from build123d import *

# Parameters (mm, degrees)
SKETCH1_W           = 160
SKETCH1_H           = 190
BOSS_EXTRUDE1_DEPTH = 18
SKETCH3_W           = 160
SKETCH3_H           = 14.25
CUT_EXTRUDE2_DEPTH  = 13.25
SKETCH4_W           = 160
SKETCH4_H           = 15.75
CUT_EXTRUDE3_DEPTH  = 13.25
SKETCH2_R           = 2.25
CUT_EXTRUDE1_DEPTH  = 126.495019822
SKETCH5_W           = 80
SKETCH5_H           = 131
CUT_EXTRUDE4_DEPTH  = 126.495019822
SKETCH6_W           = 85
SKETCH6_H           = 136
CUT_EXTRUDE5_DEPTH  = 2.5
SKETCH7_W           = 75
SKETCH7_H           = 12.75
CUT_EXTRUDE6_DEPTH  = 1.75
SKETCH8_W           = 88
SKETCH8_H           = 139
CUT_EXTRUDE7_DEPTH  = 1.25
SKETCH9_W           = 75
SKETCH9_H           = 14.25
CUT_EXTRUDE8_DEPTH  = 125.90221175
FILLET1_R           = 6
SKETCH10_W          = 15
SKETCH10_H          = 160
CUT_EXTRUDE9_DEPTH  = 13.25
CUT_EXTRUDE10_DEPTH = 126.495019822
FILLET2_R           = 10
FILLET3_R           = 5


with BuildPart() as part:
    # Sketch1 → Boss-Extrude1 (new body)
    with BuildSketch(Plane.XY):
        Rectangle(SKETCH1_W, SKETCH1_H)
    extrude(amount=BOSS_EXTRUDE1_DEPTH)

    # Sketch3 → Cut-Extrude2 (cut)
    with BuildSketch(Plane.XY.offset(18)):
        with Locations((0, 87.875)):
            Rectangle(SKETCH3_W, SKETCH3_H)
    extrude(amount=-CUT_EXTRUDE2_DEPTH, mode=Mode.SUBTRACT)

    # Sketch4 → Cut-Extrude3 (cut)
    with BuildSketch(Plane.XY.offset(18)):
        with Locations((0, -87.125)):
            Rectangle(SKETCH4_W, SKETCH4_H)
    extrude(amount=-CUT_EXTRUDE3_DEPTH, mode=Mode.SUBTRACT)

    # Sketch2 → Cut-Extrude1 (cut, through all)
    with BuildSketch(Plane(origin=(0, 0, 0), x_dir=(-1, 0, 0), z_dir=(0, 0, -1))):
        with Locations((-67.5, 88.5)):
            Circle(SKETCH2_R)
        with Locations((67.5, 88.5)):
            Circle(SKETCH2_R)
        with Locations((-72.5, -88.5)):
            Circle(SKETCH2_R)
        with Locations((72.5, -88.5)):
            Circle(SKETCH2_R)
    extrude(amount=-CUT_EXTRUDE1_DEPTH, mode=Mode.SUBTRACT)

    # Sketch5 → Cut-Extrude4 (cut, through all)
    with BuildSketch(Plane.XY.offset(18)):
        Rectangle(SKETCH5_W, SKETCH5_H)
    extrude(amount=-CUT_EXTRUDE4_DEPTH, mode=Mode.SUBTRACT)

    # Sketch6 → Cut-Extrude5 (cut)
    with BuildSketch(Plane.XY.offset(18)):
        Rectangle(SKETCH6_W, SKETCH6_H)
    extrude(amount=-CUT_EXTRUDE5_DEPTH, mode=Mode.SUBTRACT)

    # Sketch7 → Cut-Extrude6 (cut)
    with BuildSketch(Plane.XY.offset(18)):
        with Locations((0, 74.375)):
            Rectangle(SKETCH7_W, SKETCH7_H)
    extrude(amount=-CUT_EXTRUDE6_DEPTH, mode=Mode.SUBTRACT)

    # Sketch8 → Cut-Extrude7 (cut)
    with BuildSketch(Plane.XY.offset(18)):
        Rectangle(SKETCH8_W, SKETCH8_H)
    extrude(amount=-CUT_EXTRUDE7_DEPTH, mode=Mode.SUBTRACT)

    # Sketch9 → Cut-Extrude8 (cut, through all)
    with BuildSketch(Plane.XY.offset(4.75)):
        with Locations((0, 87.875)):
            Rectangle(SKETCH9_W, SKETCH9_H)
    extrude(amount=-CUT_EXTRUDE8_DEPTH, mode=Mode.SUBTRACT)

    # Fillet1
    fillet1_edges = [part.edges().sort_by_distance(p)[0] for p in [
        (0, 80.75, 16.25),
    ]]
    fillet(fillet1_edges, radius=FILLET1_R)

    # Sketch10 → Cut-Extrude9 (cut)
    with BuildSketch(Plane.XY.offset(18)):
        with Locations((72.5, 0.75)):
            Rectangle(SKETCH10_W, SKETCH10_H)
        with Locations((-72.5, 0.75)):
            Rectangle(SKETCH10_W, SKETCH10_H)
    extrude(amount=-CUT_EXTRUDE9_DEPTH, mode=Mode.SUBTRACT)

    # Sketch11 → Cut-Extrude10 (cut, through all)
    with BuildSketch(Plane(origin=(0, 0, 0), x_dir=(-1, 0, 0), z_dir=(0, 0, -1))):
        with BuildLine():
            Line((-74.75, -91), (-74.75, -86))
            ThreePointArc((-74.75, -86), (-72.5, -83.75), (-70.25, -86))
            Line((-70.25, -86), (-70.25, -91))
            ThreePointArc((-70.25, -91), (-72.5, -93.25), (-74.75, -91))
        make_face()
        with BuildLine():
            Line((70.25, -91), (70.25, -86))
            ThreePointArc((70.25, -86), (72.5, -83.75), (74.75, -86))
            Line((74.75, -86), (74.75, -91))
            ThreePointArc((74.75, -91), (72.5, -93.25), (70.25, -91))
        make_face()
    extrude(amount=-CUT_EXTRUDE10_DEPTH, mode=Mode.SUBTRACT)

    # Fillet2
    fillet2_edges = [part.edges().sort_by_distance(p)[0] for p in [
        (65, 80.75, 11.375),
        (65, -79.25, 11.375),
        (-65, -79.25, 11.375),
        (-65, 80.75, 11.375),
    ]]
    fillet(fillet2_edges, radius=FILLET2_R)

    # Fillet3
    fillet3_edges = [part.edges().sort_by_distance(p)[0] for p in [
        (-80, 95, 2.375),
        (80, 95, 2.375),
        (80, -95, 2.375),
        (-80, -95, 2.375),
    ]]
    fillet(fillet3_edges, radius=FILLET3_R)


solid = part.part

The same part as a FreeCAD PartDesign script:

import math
import FreeCAD as App
import Part
import Sketcher

V = App.Vector
Q = App.Units.Quantity


def edges_at(feature, points):
    """Names of the edges that pass closest to the given points."""
    edges = feature.Shape.Edges
    near = lambda p: min(range(len(edges)), key=lambda i: edges[i].distToShape(Part.Vertex(*p))[0])
    return sorted({f"Edge{near(p) + 1}" for p in points})

doc = App.newDocument("Part")
body = doc.addObject("PartDesign::Body", "Body")

# Sketch on XY plane
sketch1 = doc.addObject("Sketcher::SketchObject", "Sketch")
body.addObject(sketch1)
sketch1.AttachmentSupport = (doc.XY_Plane, [""])
sketch1.MapMode = "FlatFace"
sketch1.addGeometry(Part.LineSegment(V(-80, 95, 0), V(-80, -95, 0)), False)
sketch1.addGeometry(Part.LineSegment(V(-80, -95, 0), V(80, -95, 0)), False)
sketch1.addGeometry(Part.LineSegment(V(80, -95, 0), V(80, 95, 0)), False)
sketch1.addGeometry(Part.LineSegment(V(80, 95, 0), V(-80, 95, 0)), False)
sketch1.addConstraint(Sketcher.Constraint("Coincident", 0, 2, 1, 1))
sketch1.addConstraint(Sketcher.Constraint("Coincident", 1, 2, 2, 1))
sketch1.addConstraint(Sketcher.Constraint("Coincident", 2, 2, 3, 1))
sketch1.addConstraint(Sketcher.Constraint("Coincident", 3, 2, 0, 1))
sketch1.addConstraint(Sketcher.Constraint("Vertical", 0))
sketch1.addConstraint(Sketcher.Constraint("Horizontal", 1))
sketch1.addConstraint(Sketcher.Constraint("Vertical", 2))
sketch1.addConstraint(Sketcher.Constraint("Horizontal", 3))
sketch1.addConstraint(Sketcher.Constraint("Symmetric", 0, 2, 2, 2, -1, 1))
sketch1.addConstraint(Sketcher.Constraint("DistanceX", 1, 1, 1, 2, Q("160 mm")))
sketch1.addConstraint(Sketcher.Constraint("DistanceY", 0, 2, 0, 1, Q("190 mm")))
pad1 = doc.addObject("PartDesign::Pad", "Pad")
body.addObject(pad1)
pad1.Profile = sketch1
pad1.Length = 18

# Sketch on XY plane
sketch2 = doc.addObject("Sketcher::SketchObject", "Sketch001")
body.addObject(sketch2)
sketch2.AttachmentSupport = (doc.XY_Plane, [""])
sketch2.MapMode = "FlatFace"
sketch2.AttachmentOffset = App.Placement(V(0, 0, 18), App.Rotation())
sketch2.addGeometry(Part.LineSegment(V(-80, 95, 0), V(-80, 81, 0)), False)
sketch2.addGeometry(Part.LineSegment(V(-80, 81, 0), V(80, 81, 0)), False)
sketch2.addGeometry(Part.LineSegment(V(80, 81, 0), V(80, 95, 0)), False)
sketch2.addGeometry(Part.LineSegment(V(80, 95, 0), V(-80, 95, 0)), False)
sketch2.addConstraint(Sketcher.Constraint("Coincident", 0, 2, 1, 1))
sketch2.addConstraint(Sketcher.Constraint("Coincident", 1, 2, 2, 1))
sketch2.addConstraint(Sketcher.Constraint("Coincident", 2, 2, 3, 1))
sketch2.addConstraint(Sketcher.Constraint("Coincident", 3, 2, 0, 1))
sketch2.addConstraint(Sketcher.Constraint("Vertical", 0))
sketch2.addConstraint(Sketcher.Constraint("Horizontal", 1))
sketch2.addConstraint(Sketcher.Constraint("Vertical", 2))
sketch2.addConstraint(Sketcher.Constraint("Horizontal", 3))
sketch2.addConstraint(Sketcher.Constraint("DistanceX", 1, 1, 1, 2, Q("160 mm")))
sketch2.addConstraint(Sketcher.Constraint("DistanceX", 0, 2, -1, 1, Q("80 mm")))
sketch2.addConstraint(Sketcher.Constraint("DistanceY", -1, 1, 2, 2, Q("95 mm")))
sketch2.addConstraint(Sketcher.Constraint("DistanceY", 0, 2, 0, 1, Q("14.25 mm")))
pocket1 = doc.addObject("PartDesign::Pocket", "Pocket")
body.addObject(pocket1)
pocket1.Profile = sketch2
pocket1.Length = 13.25

# Sketch on XY plane
sketch3 = doc.addObject("Sketcher::SketchObject", "Sketch002")
body.addObject(sketch3)
sketch3.AttachmentSupport = (doc.XY_Plane, [""])
sketch3.MapMode = "FlatFace"
sketch3.AttachmentOffset = App.Placement(V(0, 0, 18), App.Rotation())
sketch3.addGeometry(Part.LineSegment(V(-80, -79, 0), V(-80, -95, 0)), False)
sketch3.addGeometry(Part.LineSegment(V(-80, -95, 0), V(80, -95, 0)), False)
sketch3.addGeometry(Part.LineSegment(V(80, -95, 0), V(80, -79, 0)), False)
sketch3.addGeometry(Part.LineSegment(V(80, -79, 0), V(-80, -79, 0)), False)
sketch3.addConstraint(Sketcher.Constraint("Coincident", 0, 2, 1, 1))
sketch3.addConstraint(Sketcher.Constraint("Coincident", 1, 2, 2, 1))
sketch3.addConstraint(Sketcher.Constraint("Coincident", 2, 2, 3, 1))
sketch3.addConstraint(Sketcher.Constraint("Coincident", 3, 2, 0, 1))
sketch3.addConstraint(Sketcher.Constraint("Vertical", 0))
sketch3.addConstraint(Sketcher.Constraint("Horizontal", 1))
sketch3.addConstraint(Sketcher.Constraint("Vertical", 2))
sketch3.addConstraint(Sketcher.Constraint("Horizontal", 3))
sketch3.addConstraint(Sketcher.Constraint("DistanceX", 1, 1, 1, 2, Q("160 mm")))
sketch3.addConstraint(Sketcher.Constraint("DistanceX", 0, 2, -1, 1, Q("80 mm")))
sketch3.addConstraint(Sketcher.Constraint("DistanceY", 0, 2, -1, 1, Q("95 mm")))
sketch3.addConstraint(Sketcher.Constraint("DistanceY", 0, 2, 0, 1, Q("15.75 mm")))
pocket2 = doc.addObject("PartDesign::Pocket", "Pocket001")
body.addObject(pocket2)
pocket2.Profile = sketch3
pocket2.Length = 13.25

# Sketch on XY plane
sketch4 = doc.addObject("Sketcher::SketchObject", "Sketch003")
body.addObject(sketch4)
sketch4.AttachmentSupport = (doc.XY_Plane, [""])
sketch4.MapMode = "FlatFace"
sketch4.addGeometry(Part.Circle(V(67.5, 88.5, 0), V(0, 0, 1), 2.2), False)
sketch4.addGeometry(Part.Circle(V(-67.5, 88.5, 0), V(0, 0, 1), 2.2), False)
sketch4.addGeometry(Part.Circle(V(72.5, -88.5, 0), V(0, 0, 1), 2.2), False)
sketch4.addGeometry(Part.Circle(V(-72.5, -88.5, 0), V(0, 0, 1), 2.2), False)
sketch4.addConstraint(Sketcher.Constraint("Equal", 0, 1))
sketch4.addConstraint(Sketcher.Constraint("Equal", 1, 2))
sketch4.addConstraint(Sketcher.Constraint("Equal", 2, 3))
sketch4.addConstraint(Sketcher.Constraint("Symmetric", 0, 3, 1, 3, -2))
sketch4.addConstraint(Sketcher.Constraint("Symmetric", 2, 3, 3, 3, -2))
sketch4.addConstraint(Sketcher.Constraint("Diameter", 0, Q("4.5 mm")))
sketch4.addConstraint(Sketcher.Constraint("DistanceX", 1, 3, 0, 3, Q("135 mm")))
sketch4.addConstraint(Sketcher.Constraint("DistanceX", 0, 3, 2, 3, Q("5 mm")))
sketch4.addConstraint(Sketcher.Constraint("DistanceY", 2, 3, 0, 3, Q("177 mm")))
sketch4.addConstraint(Sketcher.Constraint("DistanceY", -1, 1, 0, 3, Q("88.5 mm")))
pocket3 = doc.addObject("PartDesign::Pocket", "Pocket002")
body.addObject(pocket3)
pocket3.Profile = sketch4
pocket3.Type = "ThroughAll"
pocket3.Reversed = True

# Sketch on XY plane
sketch5 = doc.addObject("Sketcher::SketchObject", "Sketch004")
body.addObject(sketch5)
sketch5.AttachmentSupport = (doc.XY_Plane, [""])
sketch5.MapMode = "FlatFace"
sketch5.AttachmentOffset = App.Placement(V(0, 0, 18), App.Rotation())
sketch5.addGeometry(Part.LineSegment(V(-40, 66, 0), V(-40, -66, 0)), False)
sketch5.addGeometry(Part.LineSegment(V(-40, -66, 0), V(40, -66, 0)), False)
sketch5.addGeometry(Part.LineSegment(V(40, -66, 0), V(40, 66, 0)), False)
sketch5.addGeometry(Part.LineSegment(V(40, 66, 0), V(-40, 66, 0)), False)
sketch5.addConstraint(Sketcher.Constraint("Coincident", 0, 2, 1, 1))
sketch5.addConstraint(Sketcher.Constraint("Coincident", 1, 2, 2, 1))
sketch5.addConstraint(Sketcher.Constraint("Coincident", 2, 2, 3, 1))
sketch5.addConstraint(Sketcher.Constraint("Coincident", 3, 2, 0, 1))
sketch5.addConstraint(Sketcher.Constraint("Vertical", 0))
sketch5.addConstraint(Sketcher.Constraint("Horizontal", 1))
sketch5.addConstraint(Sketcher.Constraint("Vertical", 2))
sketch5.addConstraint(Sketcher.Constraint("Horizontal", 3))
sketch5.addConstraint(Sketcher.Constraint("Symmetric", 0, 2, 2, 2, -1, 1))
sketch5.addConstraint(Sketcher.Constraint("DistanceX", 1, 1, 1, 2, Q("80 mm")))
sketch5.addConstraint(Sketcher.Constraint("DistanceY", 0, 2, 0, 1, Q("131 mm")))
pocket4 = doc.addObject("PartDesign::Pocket", "Pocket003")
body.addObject(pocket4)
pocket4.Profile = sketch5
pocket4.Type = "ThroughAll"

# Sketch on XY plane
sketch6 = doc.addObject("Sketcher::SketchObject", "Sketch005")
body.addObject(sketch6)
sketch6.AttachmentSupport = (doc.XY_Plane, [""])
sketch6.MapMode = "FlatFace"
sketch6.AttachmentOffset = App.Placement(V(0, 0, 18), App.Rotation())
sketch6.addGeometry(Part.LineSegment(V(-42, 68, 0), V(-42, -68, 0)), False)
sketch6.addGeometry(Part.LineSegment(V(-42, -68, 0), V(42, -68, 0)), False)
sketch6.addGeometry(Part.LineSegment(V(42, -68, 0), V(42, 68, 0)), False)
sketch6.addGeometry(Part.LineSegment(V(42, 68, 0), V(-42, 68, 0)), False)
sketch6.addConstraint(Sketcher.Constraint("Coincident", 0, 2, 1, 1))
sketch6.addConstraint(Sketcher.Constraint("Coincident", 1, 2, 2, 1))
sketch6.addConstraint(Sketcher.Constraint("Coincident", 2, 2, 3, 1))
sketch6.addConstraint(Sketcher.Constraint("Coincident", 3, 2, 0, 1))
sketch6.addConstraint(Sketcher.Constraint("Vertical", 0))
sketch6.addConstraint(Sketcher.Constraint("Horizontal", 1))
sketch6.addConstraint(Sketcher.Constraint("Vertical", 2))
sketch6.addConstraint(Sketcher.Constraint("Horizontal", 3))
sketch6.addConstraint(Sketcher.Constraint("Symmetric", 0, 2, 2, 2, -1, 1))
sketch6.addConstraint(Sketcher.Constraint("DistanceX", 1, 1, 1, 2, Q("85 mm")))
sketch6.addConstraint(Sketcher.Constraint("DistanceY", 0, 2, 0, 1, Q("136 mm")))
pocket5 = doc.addObject("PartDesign::Pocket", "Pocket004")
body.addObject(pocket5)
pocket5.Profile = sketch6
pocket5.Length = 2.5

# Sketch on XY plane
sketch7 = doc.addObject("Sketcher::SketchObject", "Sketch006")
body.addObject(sketch7)
sketch7.AttachmentSupport = (doc.XY_Plane, [""])
sketch7.MapMode = "FlatFace"
sketch7.AttachmentOffset = App.Placement(V(0, 0, 18), App.Rotation())
sketch7.addGeometry(Part.LineSegment(V(-38, 81, 0), V(-38, 68, 0)), False)
sketch7.addGeometry(Part.LineSegment(V(-38, 68, 0), V(38, 68, 0)), False)
sketch7.addGeometry(Part.LineSegment(V(38, 68, 0), V(38, 81, 0)), False)
sketch7.addGeometry(Part.LineSegment(V(38, 81, 0), V(-38, 81, 0)), False)
sketch7.addConstraint(Sketcher.Constraint("Coincident", 0, 2, 1, 1))
sketch7.addConstraint(Sketcher.Constraint("Coincident", 1, 2, 2, 1))
sketch7.addConstraint(Sketcher.Constraint("Coincident", 2, 2, 3, 1))
sketch7.addConstraint(Sketcher.Constraint("Coincident", 3, 2, 0, 1))
sketch7.addConstraint(Sketcher.Constraint("Vertical", 0))
sketch7.addConstraint(Sketcher.Constraint("Horizontal", 1))
sketch7.addConstraint(Sketcher.Constraint("Vertical", 2))
sketch7.addConstraint(Sketcher.Constraint("Horizontal", 3))
sketch7.addConstraint(Sketcher.Constraint("DistanceX", 1, 1, 1, 2, Q("75 mm")))
sketch7.addConstraint(Sketcher.Constraint("DistanceY", -1, 1, 0, 2, Q("68 mm")))
sketch7.addConstraint(Sketcher.Constraint("DistanceY", 0, 2, 0, 1, Q("12.75 mm")))
sketch7.addConstraint(Sketcher.Constraint("DistanceX", 0, 2, -1, 1, Q("37.5 mm")))
pocket6 = doc.addObject("PartDesign::Pocket", "Pocket005")
body.addObject(pocket6)
pocket6.Profile = sketch7
pocket6.Length = 1.75

# Sketch on XY plane
sketch8 = doc.addObject("Sketcher::SketchObject", "Sketch007")
body.addObject(sketch8)
sketch8.AttachmentSupport = (doc.XY_Plane, [""])
sketch8.MapMode = "FlatFace"
sketch8.AttachmentOffset = App.Placement(V(0, 0, 18), App.Rotation())
sketch8.addGeometry(Part.LineSegment(V(-44, 70, 0), V(-44, -70, 0)), False)
sketch8.addGeometry(Part.LineSegment(V(-44, -70, 0), V(44, -70, 0)), False)
sketch8.addGeometry(Part.LineSegment(V(44, -70, 0), V(44, 70, 0)), False)
sketch8.addGeometry(Part.LineSegment(V(44, 70, 0), V(-44, 70, 0)), False)
sketch8.addConstraint(Sketcher.Constraint("Coincident", 0, 2, 1, 1))
sketch8.addConstraint(Sketcher.Constraint("Coincident", 1, 2, 2, 1))
sketch8.addConstraint(Sketcher.Constraint("Coincident", 2, 2, 3, 1))
sketch8.addConstraint(Sketcher.Constraint("Coincident", 3, 2, 0, 1))
sketch8.addConstraint(Sketcher.Constraint("Vertical", 0))
sketch8.addConstraint(Sketcher.Constraint("Horizontal", 1))
sketch8.addConstraint(Sketcher.Constraint("Vertical", 2))
sketch8.addConstraint(Sketcher.Constraint("Horizontal", 3))
sketch8.addConstraint(Sketcher.Constraint("Symmetric", 0, 2, 2, 2, -1, 1))
sketch8.addConstraint(Sketcher.Constraint("DistanceX", 1, 1, 1, 2, Q("88 mm")))
sketch8.addConstraint(Sketcher.Constraint("DistanceY", 0, 2, 0, 1, Q("139 mm")))
pocket7 = doc.addObject("PartDesign::Pocket", "Pocket006")
body.addObject(pocket7)
pocket7.Profile = sketch8
pocket7.Length = 1.25

# Sketch on XY plane
sketch9 = doc.addObject("Sketcher::SketchObject", "Sketch008")
body.addObject(sketch9)
sketch9.AttachmentSupport = (doc.XY_Plane, [""])
sketch9.MapMode = "FlatFace"
sketch9.AttachmentOffset = App.Placement(V(0, 0, 4.75), App.Rotation())
sketch9.addGeometry(Part.LineSegment(V(-38, 95, 0), V(-38, 81, 0)), False)
sketch9.addGeometry(Part.LineSegment(V(-38, 81, 0), V(38, 81, 0)), False)
sketch9.addGeometry(Part.LineSegment(V(38, 81, 0), V(38, 95, 0)), False)
sketch9.addGeometry(Part.LineSegment(V(38, 95, 0), V(-38, 95, 0)), False)
sketch9.addConstraint(Sketcher.Constraint("Coincident", 0, 2, 1, 1))
sketch9.addConstraint(Sketcher.Constraint("Coincident", 1, 2, 2, 1))
sketch9.addConstraint(Sketcher.Constraint("Coincident", 2, 2, 3, 1))
sketch9.addConstraint(Sketcher.Constraint("Coincident", 3, 2, 0, 1))
sketch9.addConstraint(Sketcher.Constraint("Vertical", 0))
sketch9.addConstraint(Sketcher.Constraint("Horizontal", 1))
sketch9.addConstraint(Sketcher.Constraint("Vertical", 2))
sketch9.addConstraint(Sketcher.Constraint("Horizontal", 3))
sketch9.addConstraint(Sketcher.Constraint("DistanceX", 1, 1, 1, 2, Q("75 mm")))
sketch9.addConstraint(Sketcher.Constraint("DistanceY", -1, 1, 2, 2, Q("95 mm")))
sketch9.addConstraint(Sketcher.Constraint("DistanceY", 0, 2, 0, 1, Q("14.25 mm")))
sketch9.addConstraint(Sketcher.Constraint("DistanceX", 0, 2, -1, 1, Q("37.5 mm")))
pocket8 = doc.addObject("PartDesign::Pocket", "Pocket007")
body.addObject(pocket8)
pocket8.Profile = sketch9
pocket8.Type = "ThroughAll"
doc.recompute()

fillet = doc.addObject("PartDesign::Fillet", "Fillet")
body.addObject(fillet)
fillet.Base = (pocket8, edges_at(pocket8, [(0, 80.75, 16.25)]))
fillet.Radius = 6

# Sketch on XY plane
sketch10 = doc.addObject("Sketcher::SketchObject", "Sketch009")
body.addObject(sketch10)
sketch10.AttachmentSupport = (doc.XY_Plane, [""])
sketch10.MapMode = "FlatFace"
sketch10.AttachmentOffset = App.Placement(V(0, 0, 18), App.Rotation())
sketch10.addGeometry(Part.LineSegment(V(65, 81, 0), V(65, -79, 0)), False)
sketch10.addGeometry(Part.LineSegment(V(65, -79, 0), V(80, -79, 0)), False)
sketch10.addGeometry(Part.LineSegment(V(80, -79, 0), V(80, 81, 0)), False)
sketch10.addGeometry(Part.LineSegment(V(80, 81, 0), V(65, 81, 0)), False)
sketch10.addGeometry(Part.LineSegment(V(-80, 81, 0), V(-80, -79, 0)), False)
sketch10.addGeometry(Part.LineSegment(V(-80, -79, 0), V(-65, -79, 0)), False)
sketch10.addGeometry(Part.LineSegment(V(-65, -79, 0), V(-65, 81, 0)), False)
sketch10.addGeometry(Part.LineSegment(V(-65, 81, 0), V(-80, 81, 0)), False)
sketch10.addConstraint(Sketcher.Constraint("Coincident", 0, 2, 1, 1))
sketch10.addConstraint(Sketcher.Constraint("Coincident", 1, 2, 2, 1))
sketch10.addConstraint(Sketcher.Constraint("Coincident", 2, 2, 3, 1))
sketch10.addConstraint(Sketcher.Constraint("Coincident", 3, 2, 0, 1))
sketch10.addConstraint(Sketcher.Constraint("Coincident", 4, 2, 5, 1))
sketch10.addConstraint(Sketcher.Constraint("Coincident", 5, 2, 6, 1))
sketch10.addConstraint(Sketcher.Constraint("Coincident", 6, 2, 7, 1))
sketch10.addConstraint(Sketcher.Constraint("Coincident", 7, 2, 4, 1))
sketch10.addConstraint(Sketcher.Constraint("Vertical", 0))
sketch10.addConstraint(Sketcher.Constraint("Horizontal", 1))
sketch10.addConstraint(Sketcher.Constraint("Vertical", 2))
sketch10.addConstraint(Sketcher.Constraint("Horizontal", 3))
sketch10.addConstraint(Sketcher.Constraint("Vertical", 4))
sketch10.addConstraint(Sketcher.Constraint("Horizontal", 5))
sketch10.addConstraint(Sketcher.Constraint("Vertical", 6))
sketch10.addConstraint(Sketcher.Constraint("Horizontal", 7))
sketch10.addConstraint(Sketcher.Constraint("Symmetric", 1, 2, 4, 2, -2))
sketch10.addConstraint(Sketcher.Constraint("Symmetric", 3, 2, 6, 2, -2))
sketch10.addConstraint(Sketcher.Constraint("DistanceX", 1, 1, 1, 2, Q("15 mm")))
sketch10.addConstraint(Sketcher.Constraint("DistanceY", 0, 2, 0, 1, Q("160 mm")))
sketch10.addConstraint(Sketcher.Constraint("DistanceX", -1, 1, 0, 2, Q("65 mm")))
sketch10.addConstraint(Sketcher.Constraint("DistanceY", 0, 2, -1, 1, Q("79.25 mm")))
pocket9 = doc.addObject("PartDesign::Pocket", "Pocket008")
body.addObject(pocket9)
pocket9.Profile = sketch10
pocket9.Length = 13.25

# Sketch on XY plane
sketch11 = doc.addObject("Sketcher::SketchObject", "Sketch010")
body.addObject(sketch11)
sketch11.AttachmentSupport = (doc.XY_Plane, [""])
sketch11.MapMode = "FlatFace"
sketch11.addGeometry(Part.LineSegment(V(74.8, -86, 0), V(74.8, -91, 0)), False)
sketch11.addGeometry(Part.ArcOfCircle(Part.Circle(V(72.5, -91, 0), V(0, 0, 1), 2.2), math.radians(180), math.radians(360)), False)
sketch11.addGeometry(Part.LineSegment(V(70.2, -91, 0), V(70.2, -86, 0)), False)
sketch11.addGeometry(Part.ArcOfCircle(Part.Circle(V(72.5, -86, 0), V(0, 0, 1), 2.2), math.radians(0), math.radians(180)), False)
sketch11.addGeometry(Part.LineSegment(V(-70.2, -86, 0), V(-70.2, -91, 0)), False)
sketch11.addGeometry(Part.ArcOfCircle(Part.Circle(V(-72.5, -91, 0), V(0, 0, 1), 2.2), math.radians(180), math.radians(360)), False)
sketch11.addGeometry(Part.LineSegment(V(-74.8, -91, 0), V(-74.8, -86, 0)), False)
sketch11.addGeometry(Part.ArcOfCircle(Part.Circle(V(-72.5, -86, 0), V(0, 0, 1), 2.2), math.radians(0), math.radians(180)), False)
sketch11.addConstraint(Sketcher.Constraint("Tangent", 0, 2, 1, 2))
sketch11.addConstraint(Sketcher.Constraint("Tangent", 1, 1, 2, 1))
sketch11.addConstraint(Sketcher.Constraint("Tangent", 2, 2, 3, 2))
sketch11.addConstraint(Sketcher.Constraint("Tangent", 3, 1, 0, 1))
sketch11.addConstraint(Sketcher.Constraint("Tangent", 4, 2, 5, 2))
sketch11.addConstraint(Sketcher.Constraint("Tangent", 5, 1, 6, 1))
sketch11.addConstraint(Sketcher.Constraint("Tangent", 6, 2, 7, 2))
sketch11.addConstraint(Sketcher.Constraint("Tangent", 7, 1, 4, 1))
sketch11.addConstraint(Sketcher.Constraint("Vertical", 0))
sketch11.addConstraint(Sketcher.Constraint("Vertical", 2))
sketch11.addConstraint(Sketcher.Constraint("Vertical", 4))
sketch11.addConstraint(Sketcher.Constraint("Vertical", 6))
sketch11.addConstraint(Sketcher.Constraint("Equal", 3, 5))
sketch11.addConstraint(Sketcher.Constraint("Symmetric", 1, 3, 5, 3, -2))
sketch11.addConstraint(Sketcher.Constraint("Horizontal", 3, 3, 7, 3))
sketch11.addConstraint(Sketcher.Constraint("DistanceY", 0, 2, 0, 1, Q("5 mm")))
sketch11.addConstraint(Sketcher.Constraint("Radius", 1, Q("2.25 mm")))
sketch11.addConstraint(Sketcher.Constraint("DistanceY", 1, 3, -1, 1, Q("91 mm")))
sketch11.addConstraint(Sketcher.Constraint("DistanceX", 5, 3, 1, 3, Q("145 mm")))
pocket10 = doc.addObject("PartDesign::Pocket", "Pocket009")
body.addObject(pocket10)
pocket10.Profile = sketch11
pocket10.Type = "ThroughAll"
pocket10.Reversed = True
doc.recompute()

fillet2 = doc.addObject("PartDesign::Fillet", "Fillet001")
body.addObject(fillet2)
fillet2.Base = (pocket10, edges_at(pocket10, [
    (65, 80.75, 11.375),
    (65, -79.25, 11.375),
    (-65, -79.25, 11.375),
    (-65, 80.75, 11.375),
]))
fillet2.Radius = 10
doc.recompute()

fillet3 = doc.addObject("PartDesign::Fillet", "Fillet002")
body.addObject(fillet3)
fillet3.Base = (fillet2, edges_at(fillet2, [
    (-80, 95, 2.375),
    (80, 95, 2.375),
    (80, -95, 2.375),
    (-80, -95, 2.375),
]))
fillet3.Radius = 5

doc.recompute()
